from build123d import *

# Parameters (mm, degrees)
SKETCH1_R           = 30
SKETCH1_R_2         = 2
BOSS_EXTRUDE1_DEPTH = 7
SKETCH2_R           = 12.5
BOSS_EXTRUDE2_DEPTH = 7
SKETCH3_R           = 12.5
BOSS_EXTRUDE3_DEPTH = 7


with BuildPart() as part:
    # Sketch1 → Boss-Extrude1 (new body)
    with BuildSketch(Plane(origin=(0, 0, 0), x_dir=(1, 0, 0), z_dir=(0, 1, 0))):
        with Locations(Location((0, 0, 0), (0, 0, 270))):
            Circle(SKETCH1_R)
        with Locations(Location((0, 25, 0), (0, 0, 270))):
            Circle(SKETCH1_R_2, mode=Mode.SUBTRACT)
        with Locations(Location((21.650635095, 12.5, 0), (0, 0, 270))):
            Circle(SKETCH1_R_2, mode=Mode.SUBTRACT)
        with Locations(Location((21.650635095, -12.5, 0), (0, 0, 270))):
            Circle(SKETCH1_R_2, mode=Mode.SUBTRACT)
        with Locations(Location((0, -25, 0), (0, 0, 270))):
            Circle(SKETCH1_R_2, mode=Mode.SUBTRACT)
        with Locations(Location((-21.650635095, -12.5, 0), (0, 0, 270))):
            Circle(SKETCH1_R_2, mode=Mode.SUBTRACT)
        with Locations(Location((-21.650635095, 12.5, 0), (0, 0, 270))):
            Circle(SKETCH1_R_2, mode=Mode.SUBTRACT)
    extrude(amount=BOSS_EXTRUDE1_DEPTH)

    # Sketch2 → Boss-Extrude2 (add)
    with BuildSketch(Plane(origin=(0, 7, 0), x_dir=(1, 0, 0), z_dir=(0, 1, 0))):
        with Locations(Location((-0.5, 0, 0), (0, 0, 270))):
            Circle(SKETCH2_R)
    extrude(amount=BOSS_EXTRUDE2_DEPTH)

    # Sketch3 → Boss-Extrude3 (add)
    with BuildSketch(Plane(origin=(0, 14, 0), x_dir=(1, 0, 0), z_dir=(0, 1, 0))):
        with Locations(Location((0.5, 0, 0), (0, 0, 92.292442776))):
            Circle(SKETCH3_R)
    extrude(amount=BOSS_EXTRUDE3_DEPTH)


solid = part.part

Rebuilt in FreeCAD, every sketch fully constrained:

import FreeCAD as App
import Part
import Sketcher
from FreeCAD import Vector
Q = App.Units.Quantity

doc = App.newDocument("Part")
body = doc.addObject("PartDesign::Body", "Body")

sketch1 = doc.addObject("Sketcher::SketchObject", "Sketch")
body.addObject(sketch1)
sketch1.AttachmentSupport = (doc.XZ_Plane, [""])
sketch1.MapMode = "FlatFace"
sketch1.addGeometry(Part.Circle(Vector(0, 0, 0), Vector(0, 0, 1), 30), False)
sketch1.addGeometry(Part.Circle(Vector(-21.650635, -12.5, 0), Vector(0, 0, 1), 2), False)
sketch1.addGeometry(Part.Circle(Vector(0, -25, 0), Vector(0, 0, 1), 2), False)
sketch1.addGeometry(Part.Circle(Vector(-21.650635, 12.5, 0), Vector(0, 0, 1), 2), False)
sketch1.addGeometry(Part.Circle(Vector(21.650635, -12.5, 0), Vector(0, 0, 1), 2), False)
sketch1.addGeometry(Part.Circle(Vector(0, 25, 0), Vector(0, 0, 1), 2), False)
sketch1.addGeometry(Part.Circle(Vector(21.650635, 12.5, 0), Vector(0, 0, 1), 2), False)
sketch1.addConstraint(Sketcher.Constraint("Coincident", 0, 3, -1, 1))
sketch1.addConstraint(Sketcher.Constraint("Equal", 1, 2))
sketch1.addConstraint(Sketcher.Constraint("Equal", 2, 3))
sketch1.addConstraint(Sketcher.Constraint("Equal", 3, 4))
sketch1.addConstraint(Sketcher.Constraint("Equal", 4, 5))
sketch1.addConstraint(Sketcher.Constraint("Equal", 5, 6))
sketch1.addConstraint(Sketcher.Constraint("Symmetric", 3, 3, 4, 3, -1, 1))
sketch1.addConstraint(Sketcher.Constraint("Symmetric", 2, 3, 5, 3, -1, 1))
sketch1.addConstraint(Sketcher.Constraint("Symmetric", 1, 3, 6, 3, -1, 1))
sketch1.addConstraint(Sketcher.Constraint("Symmetric", 1, 3, 4, 3, -2))
sketch1.addConstraint(Sketcher.Constraint("PointOnObject", 2, 3, -2))
sketch1.addConstraint(Sketcher.Constraint("Diameter", 0, Q("60 mm")))
sketch1.addConstraint(Sketcher.Constraint("Diameter", 1, Q("4 mm")))
sketch1.addConstraint(Sketcher.Constraint("DistanceY", 2, 3, -1, 1, Q("25 mm")))
sketch1.addConstraint(Sketcher.Constraint("DistanceY", 1, 3, 3, 3, Q("25 mm")))
sketch1.addConstraint(Sketcher.Constraint("DistanceX", 1, 3, 4, 3, Q("43.30127 mm")))
pad1 = doc.addObject("PartDesign::Pad", "Pad")
body.addObject(pad1)
pad1.Profile = sketch1
pad1.Length = 7
pad1.Reversed = True

sketch2 = doc.addObject("Sketcher::SketchObject", "Sketch001")
body.addObject(sketch2)
sketch2.AttachmentSupport = (doc.XZ_Plane, [""])
sketch2.MapMode = "FlatFace"
sketch2.AttachmentOffset = App.Placement(Vector(0, 0, -7), App.Rotation())
sketch2.addGeometry(Part.Circle(Vector(-0.5, 0, 0), Vector(0, 0, 1), 12.5), False)
sketch2.addConstraint(Sketcher.Constraint("PointOnObject", 0, 3, -1))
sketch2.addConstraint(Sketcher.Constraint("Diameter", 0, Q("25 mm")))
sketch2.addConstraint(Sketcher.Constraint("DistanceX", 0, 3, -1, 1, Q("0.5 mm")))
pad2 = doc.addObject("PartDesign::Pad", "Pad001")
body.addObject(pad2)
pad2.Profile = sketch2
pad2.Length = 7
pad2.Reversed = True

sketch3 = doc.addObject("Sketcher::SketchObject", "Sketch002")
body.addObject(sketch3)
sketch3.AttachmentSupport = (doc.XZ_Plane, [""])
sketch3.MapMode = "FlatFace"
sketch3.AttachmentOffset = App.Placement(Vector(0, 0, -14), App.Rotation())
sketch3.addGeometry(Part.Circle(Vector(0.5, 0, 0), Vector(0, 0, 1), 12.5), False)
sketch3.addConstraint(Sketcher.Constraint("PointOnObject", 0, 3, -1))
sketch3.addConstraint(Sketcher.Constraint("Diameter", 0, Q("25 mm")))
sketch3.addConstraint(Sketcher.Constraint("DistanceX", -1, 1, 0, 3, Q("0.5 mm")))
pad3 = doc.addObject("PartDesign::Pad", "Pad002")
body.addObject(pad3)
pad3.Profile = sketch3
pad3.Length = 7
pad3.Reversed = True

doc.recompute()
